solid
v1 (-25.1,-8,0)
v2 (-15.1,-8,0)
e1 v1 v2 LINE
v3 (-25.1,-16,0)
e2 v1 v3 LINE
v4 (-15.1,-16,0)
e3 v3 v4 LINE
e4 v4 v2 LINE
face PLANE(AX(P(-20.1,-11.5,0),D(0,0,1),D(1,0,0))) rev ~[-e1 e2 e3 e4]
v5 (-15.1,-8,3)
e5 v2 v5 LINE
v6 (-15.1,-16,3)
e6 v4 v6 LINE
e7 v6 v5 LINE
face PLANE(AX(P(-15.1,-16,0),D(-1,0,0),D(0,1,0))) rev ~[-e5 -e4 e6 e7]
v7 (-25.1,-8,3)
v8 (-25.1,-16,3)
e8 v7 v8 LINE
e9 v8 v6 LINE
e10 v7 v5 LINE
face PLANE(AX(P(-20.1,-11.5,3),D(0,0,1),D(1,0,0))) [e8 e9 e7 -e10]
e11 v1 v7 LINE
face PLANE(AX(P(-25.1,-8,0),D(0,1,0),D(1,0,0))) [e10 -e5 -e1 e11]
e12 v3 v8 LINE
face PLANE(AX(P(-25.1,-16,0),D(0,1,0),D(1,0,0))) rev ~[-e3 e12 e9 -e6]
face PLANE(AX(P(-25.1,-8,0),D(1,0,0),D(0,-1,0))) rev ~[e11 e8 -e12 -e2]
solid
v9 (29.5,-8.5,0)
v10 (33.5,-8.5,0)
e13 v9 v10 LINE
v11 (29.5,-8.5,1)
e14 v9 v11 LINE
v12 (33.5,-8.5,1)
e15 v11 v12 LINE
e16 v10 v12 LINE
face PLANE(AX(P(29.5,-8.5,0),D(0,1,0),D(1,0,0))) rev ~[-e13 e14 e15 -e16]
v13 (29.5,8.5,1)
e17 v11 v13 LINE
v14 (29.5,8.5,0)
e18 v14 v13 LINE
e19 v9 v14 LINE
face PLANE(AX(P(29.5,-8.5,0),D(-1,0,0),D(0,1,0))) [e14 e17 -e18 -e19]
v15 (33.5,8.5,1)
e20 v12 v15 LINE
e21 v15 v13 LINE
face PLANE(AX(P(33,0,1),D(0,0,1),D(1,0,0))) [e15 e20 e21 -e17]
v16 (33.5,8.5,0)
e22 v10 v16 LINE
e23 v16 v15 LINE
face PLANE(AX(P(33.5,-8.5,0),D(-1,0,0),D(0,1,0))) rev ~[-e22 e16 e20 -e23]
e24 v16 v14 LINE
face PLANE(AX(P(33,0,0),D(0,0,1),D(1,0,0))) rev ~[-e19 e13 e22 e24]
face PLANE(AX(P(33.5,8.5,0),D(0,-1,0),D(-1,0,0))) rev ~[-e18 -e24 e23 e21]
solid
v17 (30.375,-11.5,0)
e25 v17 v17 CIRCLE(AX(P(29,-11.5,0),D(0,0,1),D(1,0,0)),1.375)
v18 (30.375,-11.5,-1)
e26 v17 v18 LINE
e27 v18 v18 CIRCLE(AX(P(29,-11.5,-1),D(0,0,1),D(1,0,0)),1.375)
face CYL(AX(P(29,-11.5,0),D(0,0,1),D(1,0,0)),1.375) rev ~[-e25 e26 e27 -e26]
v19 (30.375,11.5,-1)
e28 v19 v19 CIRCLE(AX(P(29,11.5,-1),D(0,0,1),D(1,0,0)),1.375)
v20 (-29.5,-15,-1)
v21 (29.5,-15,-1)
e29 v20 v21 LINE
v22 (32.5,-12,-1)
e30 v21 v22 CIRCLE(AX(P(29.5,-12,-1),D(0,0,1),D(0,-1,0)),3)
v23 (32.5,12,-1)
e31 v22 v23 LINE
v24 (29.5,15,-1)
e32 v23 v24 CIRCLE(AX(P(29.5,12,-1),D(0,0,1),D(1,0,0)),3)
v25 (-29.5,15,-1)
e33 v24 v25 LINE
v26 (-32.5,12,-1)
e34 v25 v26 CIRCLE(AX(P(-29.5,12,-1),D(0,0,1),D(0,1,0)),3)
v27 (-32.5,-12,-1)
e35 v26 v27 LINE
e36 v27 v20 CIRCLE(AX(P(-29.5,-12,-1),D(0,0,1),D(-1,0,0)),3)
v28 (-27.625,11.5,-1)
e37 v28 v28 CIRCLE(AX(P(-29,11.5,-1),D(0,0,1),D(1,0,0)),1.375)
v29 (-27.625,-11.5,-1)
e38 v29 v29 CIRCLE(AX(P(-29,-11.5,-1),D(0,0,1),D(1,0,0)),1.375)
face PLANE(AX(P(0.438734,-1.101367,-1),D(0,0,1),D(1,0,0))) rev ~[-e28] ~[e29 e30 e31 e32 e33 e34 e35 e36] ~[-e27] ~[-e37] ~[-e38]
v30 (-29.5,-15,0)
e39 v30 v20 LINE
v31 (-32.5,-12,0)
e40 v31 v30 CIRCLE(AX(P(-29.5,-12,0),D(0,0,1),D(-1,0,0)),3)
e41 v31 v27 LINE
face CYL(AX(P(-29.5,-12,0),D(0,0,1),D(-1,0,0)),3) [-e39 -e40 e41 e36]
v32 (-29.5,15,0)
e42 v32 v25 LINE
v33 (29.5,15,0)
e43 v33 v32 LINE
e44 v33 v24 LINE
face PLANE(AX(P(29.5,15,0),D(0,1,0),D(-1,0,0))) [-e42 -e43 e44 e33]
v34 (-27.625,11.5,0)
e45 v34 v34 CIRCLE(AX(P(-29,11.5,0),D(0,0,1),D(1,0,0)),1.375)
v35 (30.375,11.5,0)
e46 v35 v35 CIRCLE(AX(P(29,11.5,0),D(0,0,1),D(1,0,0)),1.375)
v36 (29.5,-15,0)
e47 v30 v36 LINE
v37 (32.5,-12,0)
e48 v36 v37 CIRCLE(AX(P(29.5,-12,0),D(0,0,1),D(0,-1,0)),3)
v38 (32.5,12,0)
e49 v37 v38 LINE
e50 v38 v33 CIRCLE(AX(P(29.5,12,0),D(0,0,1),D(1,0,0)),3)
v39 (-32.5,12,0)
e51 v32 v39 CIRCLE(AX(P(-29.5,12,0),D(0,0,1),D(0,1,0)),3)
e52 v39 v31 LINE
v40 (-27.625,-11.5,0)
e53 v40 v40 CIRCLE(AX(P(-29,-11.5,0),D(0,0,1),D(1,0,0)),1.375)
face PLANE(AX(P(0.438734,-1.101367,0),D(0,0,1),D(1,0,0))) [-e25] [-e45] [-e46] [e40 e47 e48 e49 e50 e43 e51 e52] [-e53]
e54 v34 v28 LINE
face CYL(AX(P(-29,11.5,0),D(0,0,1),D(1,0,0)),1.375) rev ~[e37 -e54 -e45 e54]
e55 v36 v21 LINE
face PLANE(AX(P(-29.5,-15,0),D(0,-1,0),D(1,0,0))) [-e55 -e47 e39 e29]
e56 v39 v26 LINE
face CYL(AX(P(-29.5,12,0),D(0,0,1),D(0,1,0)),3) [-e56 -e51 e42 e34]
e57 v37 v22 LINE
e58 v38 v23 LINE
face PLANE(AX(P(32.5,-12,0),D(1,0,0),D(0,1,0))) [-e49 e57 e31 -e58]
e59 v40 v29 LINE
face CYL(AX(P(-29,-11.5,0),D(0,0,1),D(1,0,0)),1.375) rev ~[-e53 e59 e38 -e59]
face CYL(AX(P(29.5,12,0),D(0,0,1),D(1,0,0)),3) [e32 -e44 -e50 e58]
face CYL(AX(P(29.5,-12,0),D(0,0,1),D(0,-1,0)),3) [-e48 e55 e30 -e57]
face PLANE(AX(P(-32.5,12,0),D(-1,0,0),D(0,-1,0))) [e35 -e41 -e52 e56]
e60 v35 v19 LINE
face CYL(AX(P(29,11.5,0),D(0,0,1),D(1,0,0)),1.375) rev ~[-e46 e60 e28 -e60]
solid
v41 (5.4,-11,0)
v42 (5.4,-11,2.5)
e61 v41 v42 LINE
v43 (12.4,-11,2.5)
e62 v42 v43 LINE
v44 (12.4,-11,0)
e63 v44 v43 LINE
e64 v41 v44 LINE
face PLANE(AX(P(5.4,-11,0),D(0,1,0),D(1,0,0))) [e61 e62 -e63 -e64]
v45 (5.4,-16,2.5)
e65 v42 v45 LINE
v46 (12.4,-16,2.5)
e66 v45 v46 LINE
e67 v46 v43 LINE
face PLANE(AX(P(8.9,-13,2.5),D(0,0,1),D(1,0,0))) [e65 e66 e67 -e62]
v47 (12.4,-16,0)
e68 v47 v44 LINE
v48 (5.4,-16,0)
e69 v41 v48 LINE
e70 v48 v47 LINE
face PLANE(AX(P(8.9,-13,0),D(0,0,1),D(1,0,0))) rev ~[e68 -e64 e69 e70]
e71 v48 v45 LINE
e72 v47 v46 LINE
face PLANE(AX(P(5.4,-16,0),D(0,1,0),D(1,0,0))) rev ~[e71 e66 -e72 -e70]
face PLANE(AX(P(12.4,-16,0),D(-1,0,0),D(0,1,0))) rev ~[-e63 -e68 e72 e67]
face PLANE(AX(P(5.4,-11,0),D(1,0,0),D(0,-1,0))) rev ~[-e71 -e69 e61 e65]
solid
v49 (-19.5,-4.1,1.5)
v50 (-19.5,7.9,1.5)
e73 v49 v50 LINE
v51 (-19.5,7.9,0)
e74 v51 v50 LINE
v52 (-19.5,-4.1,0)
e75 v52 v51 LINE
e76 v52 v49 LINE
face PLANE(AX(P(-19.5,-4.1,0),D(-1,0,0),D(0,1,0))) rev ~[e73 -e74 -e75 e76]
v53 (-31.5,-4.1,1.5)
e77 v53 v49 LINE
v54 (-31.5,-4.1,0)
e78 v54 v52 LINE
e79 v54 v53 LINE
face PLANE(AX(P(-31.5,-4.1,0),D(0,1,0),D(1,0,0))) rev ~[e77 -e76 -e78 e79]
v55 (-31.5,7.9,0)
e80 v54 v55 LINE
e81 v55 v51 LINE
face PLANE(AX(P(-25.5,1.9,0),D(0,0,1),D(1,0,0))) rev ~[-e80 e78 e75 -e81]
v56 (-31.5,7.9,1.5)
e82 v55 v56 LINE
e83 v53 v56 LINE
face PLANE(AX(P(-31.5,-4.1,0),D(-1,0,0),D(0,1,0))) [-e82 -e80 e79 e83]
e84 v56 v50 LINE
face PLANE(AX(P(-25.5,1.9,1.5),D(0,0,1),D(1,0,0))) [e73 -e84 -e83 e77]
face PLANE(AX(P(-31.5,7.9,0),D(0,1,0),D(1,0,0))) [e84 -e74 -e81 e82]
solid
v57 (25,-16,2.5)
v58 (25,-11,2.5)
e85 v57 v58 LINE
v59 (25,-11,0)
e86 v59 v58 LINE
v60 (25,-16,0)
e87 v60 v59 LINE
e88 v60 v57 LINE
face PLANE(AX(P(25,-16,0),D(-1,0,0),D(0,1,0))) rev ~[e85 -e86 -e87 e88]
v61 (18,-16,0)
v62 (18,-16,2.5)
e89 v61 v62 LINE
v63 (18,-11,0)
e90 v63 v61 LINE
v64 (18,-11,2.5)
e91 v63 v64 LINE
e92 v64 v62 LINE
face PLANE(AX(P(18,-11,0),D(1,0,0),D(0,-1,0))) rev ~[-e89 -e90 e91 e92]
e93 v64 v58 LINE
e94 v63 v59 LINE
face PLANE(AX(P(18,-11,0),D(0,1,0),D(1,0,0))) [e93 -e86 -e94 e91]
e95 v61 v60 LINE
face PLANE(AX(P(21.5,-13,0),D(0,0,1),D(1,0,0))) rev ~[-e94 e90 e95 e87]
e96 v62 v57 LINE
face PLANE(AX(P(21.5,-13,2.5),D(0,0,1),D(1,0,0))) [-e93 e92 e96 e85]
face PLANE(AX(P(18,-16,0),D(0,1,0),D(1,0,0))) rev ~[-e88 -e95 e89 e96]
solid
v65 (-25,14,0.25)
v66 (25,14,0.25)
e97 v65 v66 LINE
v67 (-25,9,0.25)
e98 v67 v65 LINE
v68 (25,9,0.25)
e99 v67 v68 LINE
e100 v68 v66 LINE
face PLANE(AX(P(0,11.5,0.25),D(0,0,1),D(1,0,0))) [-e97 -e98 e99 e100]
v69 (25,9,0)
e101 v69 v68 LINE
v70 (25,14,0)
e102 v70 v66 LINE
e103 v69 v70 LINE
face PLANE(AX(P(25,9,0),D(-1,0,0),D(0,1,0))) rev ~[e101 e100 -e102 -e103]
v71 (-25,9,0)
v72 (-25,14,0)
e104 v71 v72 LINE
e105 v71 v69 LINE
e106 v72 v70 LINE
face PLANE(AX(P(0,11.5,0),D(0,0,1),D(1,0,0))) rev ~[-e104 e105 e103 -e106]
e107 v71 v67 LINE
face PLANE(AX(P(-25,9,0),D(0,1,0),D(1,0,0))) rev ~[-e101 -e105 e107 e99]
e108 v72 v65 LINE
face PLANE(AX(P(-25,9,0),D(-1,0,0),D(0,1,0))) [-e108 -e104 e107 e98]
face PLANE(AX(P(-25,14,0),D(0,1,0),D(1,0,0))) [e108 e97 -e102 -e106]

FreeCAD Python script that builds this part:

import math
import FreeCAD as App
import Part
import Sketcher
from FreeCAD import Vector


def add_polygon(sketch, points):
    """Adds a closed chain of lines whose ends are joined by coincident constraints."""
    first, n = sketch.GeometryCount, len(points)
    for a, b in zip(points, points[1:] + points[:1]):
        sketch.addGeometry(Part.LineSegment(App.Vector(*a, 0), App.Vector(*b, 0)), False)
    for i in range(n):
        sketch.addConstraint(Sketcher.Constraint("Coincident", first + i, 2, first + (i + 1) % n, 1))

doc = App.newDocument("Part")
body = doc.addObject("PartDesign::Body", "Body")

# Sketch on XY plane
sketch1 = body.newObject("Sketcher::SketchObject", "Sketch")
sketch1.AttachmentSupport = (doc.getObject("XY_Plane"), [""])
sketch1.MapMode = "FlatFace"
sketch1.addGeometry(Part.ArcOfCircle(Part.Circle(Vector(29.5, -12, 0), Vector(0, 0, 1), 3), math.radians(-90), math.radians(0)), False)
sketch1.addGeometry(Part.LineSegment(Vector(32.5, -12, 0), Vector(32.5, 12, 0)), False)
sketch1.addGeometry(Part.ArcOfCircle(Part.Circle(Vector(29.5, 12, 0), Vector(0, 0, 1), 3), math.radians(0), math.radians(90)), False)
sketch1.addGeometry(Part.LineSegment(Vector(29.5, 15, 0), Vector(-29.5, 15, 0)), False)
sketch1.addGeometry(Part.ArcOfCircle(Part.Circle(Vector(-29.5, 12, 0), Vector(0, 0, 1), 3), math.radians(90), math.radians(180)), False)
sketch1.addGeometry(Part.LineSegment(Vector(-32.5, 12, 0), Vector(-32.5, -12, 0)), False)
sketch1.addGeometry(Part.ArcOfCircle(Part.Circle(Vector(-29.5, -12, 0), Vector(0, 0, 1), 3), math.radians(180), math.radians(270)), False)
sketch1.addGeometry(Part.LineSegment(Vector(-29.5, -15, 0), Vector(29.5, -15, 0)), False)
sketch1.addGeometry(Part.Circle(Vector(-29, -11.5, 0), Vector(0, 0, 1), 1.4), False)
sketch1.addGeometry(Part.Circle(Vector(29, -11.5, 0), Vector(0, 0, 1), 1.4), False)
sketch1.addGeometry(Part.Circle(Vector(-29, 11.5, 0), Vector(0, 0, 1), 1.4), False)
sketch1.addGeometry(Part.Circle(Vector(29, 11.5, 0), Vector(0, 0, 1), 1.4), False)
sketch1.addConstraint(Sketcher.Constraint("Tangent", 0, 2, 1, 1))
sketch1.addConstraint(Sketcher.Constraint("Tangent", 1, 2, 2, 1))
sketch1.addConstraint(Sketcher.Constraint("Tangent", 2, 2, 3, 1))
sketch1.addConstraint(Sketcher.Constraint("Tangent", 3, 2, 4, 1))
sketch1.addConstraint(Sketcher.Constraint("Tangent", 4, 2, 5, 1))
sketch1.addConstraint(Sketcher.Constraint("Tangent", 5, 2, 6, 1))
sketch1.addConstraint(Sketcher.Constraint("Tangent", 6, 2, 7, 1))
sketch1.addConstraint(Sketcher.Constraint("Tangent", 7, 2, 0, 1))
sketch1.addConstraint(Sketcher.Constraint("Vertical", 1))
sketch1.addConstraint(Sketcher.Constraint("Horizontal", 3))
sketch1.addConstraint(Sketcher.Constraint("Vertical", 5))
sketch1.addConstraint(Sketcher.Constraint("Horizontal", 7))
sketch1.addConstraint(Sketcher.Constraint("Equal", 0, 2))
sketch1.addConstraint(Sketcher.Constraint("Equal", 2, 4))
sketch1.addConstraint(Sketcher.Constraint("Equal", 4, 6))
sketch1.addConstraint(Sketcher.Constraint("Equal", 8, 9))
sketch1.addConstraint(Sketcher.Constraint("Equal", 9, 10))
sketch1.addConstraint(Sketcher.Constraint("Equal", 10, 11))
sketch1.addConstraint(Sketcher.Constraint("Symmetric", 0, 3, 4, 3, -1, 1))
sketch1.addConstraint(Sketcher.Constraint("Symmetric", 9, 3, 10, 3, -1, 1))
sketch1.addConstraint(Sketcher.Constraint("Symmetric", 8, 3, 11, 3, -1, 1))
sketch1.addConstraint(Sketcher.Constraint("Symmetric", 8, 3, 9, 3, -2))
sketch1.addConstraint(Sketcher.Constraint("Radius", 0, 3.0))
sketch1.addConstraint(Sketcher.Constraint("Diameter", 8, 2.75))
sketch1.addConstraint(Sketcher.Constraint("DistanceX", 3, 2, 3, 1, 59.0))
sketch1.addConstraint(Sketcher.Constraint("DistanceY", 1, 1, 1, 2, 24.0))
sketch1.addConstraint(Sketcher.Constraint("DistanceX", 8, 3, -1, 1, 29.0))
sketch1.addConstraint(Sketcher.Constraint("DistanceY", 8, 3, 10, 3, 23.0))
pad1 = body.newObject("PartDesign::Pad", "Pad")
pad1.Profile = sketch1
pad1.Length = 1
pad1.Reversed = True
body2 = doc.addObject("PartDesign::Body", "Body001")

# Sketch on XY plane
sketch2 = body2.newObject("Sketcher::SketchObject", "Sketch001")
sketch2.AttachmentSupport = (doc.getObject("XY_Plane001"), [""])
sketch2.MapMode = "FlatFace"
add_polygon(sketch2, [(-32, 8), (-32, -4), (-20, -4), (-20, 8)])  # lines 0-3
sketch2.addConstraint(Sketcher.Constraint("Vertical", 0))
sketch2.addConstraint(Sketcher.Constraint("Horizontal", 1))
sketch2.addConstraint(Sketcher.Constraint("Vertical", 2))
sketch2.addConstraint(Sketcher.Constraint("Horizontal", 3))
sketch2.addConstraint(Sketcher.Constraint("Equal", 3, 0))
sketch2.addConstraint(Sketcher.Constraint("DistanceX", 1, 1, 1, 2, 12.0))
sketch2.addConstraint(Sketcher.Constraint("DistanceX", 0, 2, -1, 1, 31.5))
sketch2.addConstraint(Sketcher.Constraint("DistanceY", 0, 2, -1, 1, 4.1))
pad2 = body2.newObject("PartDesign::Pad", "Pad001")
pad2.Profile = sketch2
pad2.Length = 1.5
body3 = doc.addObject("PartDesign::Body", "Body002")

# Sketch on XY plane
sketch3 = body3.newObject("Sketcher::SketchObject", "Sketch002")
sketch3.AttachmentSupport = (doc.getObject("XY_Plane002"), [""])
sketch3.MapMode = "FlatFace"
add_polygon(sketch3, [(-25, -8), (-25, -16), (-15, -16), (-15, -8)])  # lines 0-3
sketch3.addConstraint(Sketcher.Constraint("Vertical", 0))
sketch3.addConstraint(Sketcher.Constraint("Horizontal", 1))
sketch3.addConstraint(Sketcher.Constraint("Vertical", 2))
sketch3.addConstraint(Sketcher.Constraint("Horizontal", 3))
sketch3.addConstraint(Sketcher.Constraint("DistanceX", 1, 1, 1, 2, 10.0))
sketch3.addConstraint(Sketcher.Constraint("DistanceY", 0, 2, 0, 1, 8.0))
sketch3.addConstraint(Sketcher.Constraint("DistanceY", 0, 2, -1, 1, 16.0))
sketch3.addConstraint(Sketcher.Constraint("DistanceX", 0, 2, -1, 1, 25.1))
pad3 = body3.newObject("PartDesign::Pad", "Pad002")
pad3.Profile = sketch3
pad3.Length = 3
body4 = doc.addObject("PartDesign::Body", "Body003")

# Sketch on XY plane
sketch4 = body4.newObject("Sketcher::SketchObject", "Sketch003")
sketch4.AttachmentSupport = (doc.getObject("XY_Plane003"), [""])
sketch4.MapMode = "FlatFace"
add_polygon(sketch4, [(5, -11), (5, -16), (12, -16), (12, -11)])  # lines 0-3
sketch4.addConstraint(Sketcher.Constraint("Vertical", 0))
sketch4.addConstraint(Sketcher.Constraint("Horizontal", 1))
sketch4.addConstraint(Sketcher.Constraint("Vertical", 2))
sketch4.addConstraint(Sketcher.Constraint("Horizontal", 3))
sketch4.addConstraint(Sketcher.Constraint("DistanceX", 1, 1, 1, 2, 7.0))
sketch4.addConstraint(Sketcher.Constraint("DistanceY", 0, 2, 0, 1, 5.0))
sketch4.addConstraint(Sketcher.Constraint("DistanceY", 0, 2, -1, 1, 16.0))
sketch4.addConstraint(Sketcher.Constraint("DistanceX", -1, 1, 0, 2, 5.4))
pad4 = body4.newObject("PartDesign::Pad", "Pad003")
pad4.Profile = sketch4
pad4.Length = 2.5
body5 = doc.addObject("PartDesign::Body", "Body004")

# Sketch on XY plane
sketch5 = body5.newObject("Sketcher::SketchObject", "Sketch004")
sketch5.AttachmentSupport = (doc.getObject("XY_Plane004"), [""])
sketch5.MapMode = "FlatFace"
add_polygon(sketch5, [(18, -11), (18, -16), (25, -16), (25, -11)])  # lines 0-3
sketch5.addConstraint(Sketcher.Constraint("Vertical", 0))
sketch5.addConstraint(Sketcher.Constraint("Horizontal", 1))
sketch5.addConstraint(Sketcher.Constraint("Vertical", 2))
sketch5.addConstraint(Sketcher.Constraint("Horizontal", 3))
sketch5.addConstraint(Sketcher.Constraint("DistanceX", 1, 1, 1, 2, 7.0))
sketch5.addConstraint(Sketcher.Constraint("DistanceY", 0, 2, 0, 1, 5.0))
sketch5.addConstraint(Sketcher.Constraint("DistanceX", -1, 1, 0, 2, 18.0))
sketch5.addConstraint(Sketcher.Constraint("DistanceY", 0, 2, -1, 1, 16.0))
pad5 = body5.newObject("PartDesign::Pad", "Pad004")
pad5.Profile = sketch5
pad5.Length = 2.5
body6 = doc.addObject("PartDesign::Body", "Body005")

# Sketch on XY plane
sketch6 = body6.newObject("Sketcher::SketchObject", "Sketch005")
sketch6.AttachmentSupport = (doc.getObject("XY_Plane005"), [""])
sketch6.MapMode = "FlatFace"
add_polygon(sketch6, [(33.5, -8.5), (33.5, 8.5), (29.5, 8.5), (29.5, -8.5)])  # lines 0-3
sketch6.addConstraint(Sketcher.Constraint("Vertical", 0))
sketch6.addConstraint(Sketcher.Constraint("Horizontal", 1))
sketch6.addConstraint(Sketcher.Constraint("Vertical", 2))
sketch6.addConstraint(Sketcher.Constraint("Horizontal", 3))
sketch6.addConstraint(Sketcher.Constraint("DistanceX", 1, 2, 1, 1, 4.0))
sketch6.addConstraint(Sketcher.Constraint("DistanceY", 0, 1, 0, 2, 17.0))
sketch6.addConstraint(Sketcher.Constraint("DistanceX", -1, 1, 0, 2, 33.5))
sketch6.addConstraint(Sketcher.Constraint("DistanceY", -1, 1, 0, 2, 8.5))
pad6 = body6.newObject("PartDesign::Pad", "Pad005")
pad6.Profile = sketch6
pad6.Length = 1
body7 = doc.addObject("PartDesign::Body", "Body006")

# Sketch on XY plane
sketch7 = body7.newObject("Sketcher::SketchObject", "Sketch006")
sketch7.AttachmentSupport = (doc.getObject("XY_Plane006"), [""])
sketch7.MapMode = "FlatFace"
add_polygon(sketch7, [(-25, 14), (-25, 9), (25, 9), (25, 14)])  # lines 0-3
sketch7.addConstraint(Sketcher.Constraint("Vertical", 0))
sketch7.addConstraint(Sketcher.Constraint("Horizontal", 1))
sketch7.addConstraint(Sketcher.Constraint("Vertical", 2))
sketch7.addConstraint(Sketcher.Constraint("Horizontal", 3))
sketch7.addConstraint(Sketcher.Constraint("DistanceX", 1, 1, 1, 2, 50.0))
sketch7.addConstraint(Sketcher.Constraint("DistanceY", 0, 2, 0, 1, 5.0))
sketch7.addConstraint(Sketcher.Constraint("DistanceX", 0, 2, -1, 1, 25.0))
sketch7.addConstraint(Sketcher.Constraint("DistanceY", -1, 1, 0, 2, 9.0))
pad7 = body7.newObject("PartDesign::Pad", "Pad006")
pad7.Profile = sketch7
pad7.Length = 0.25

doc.recompute()
